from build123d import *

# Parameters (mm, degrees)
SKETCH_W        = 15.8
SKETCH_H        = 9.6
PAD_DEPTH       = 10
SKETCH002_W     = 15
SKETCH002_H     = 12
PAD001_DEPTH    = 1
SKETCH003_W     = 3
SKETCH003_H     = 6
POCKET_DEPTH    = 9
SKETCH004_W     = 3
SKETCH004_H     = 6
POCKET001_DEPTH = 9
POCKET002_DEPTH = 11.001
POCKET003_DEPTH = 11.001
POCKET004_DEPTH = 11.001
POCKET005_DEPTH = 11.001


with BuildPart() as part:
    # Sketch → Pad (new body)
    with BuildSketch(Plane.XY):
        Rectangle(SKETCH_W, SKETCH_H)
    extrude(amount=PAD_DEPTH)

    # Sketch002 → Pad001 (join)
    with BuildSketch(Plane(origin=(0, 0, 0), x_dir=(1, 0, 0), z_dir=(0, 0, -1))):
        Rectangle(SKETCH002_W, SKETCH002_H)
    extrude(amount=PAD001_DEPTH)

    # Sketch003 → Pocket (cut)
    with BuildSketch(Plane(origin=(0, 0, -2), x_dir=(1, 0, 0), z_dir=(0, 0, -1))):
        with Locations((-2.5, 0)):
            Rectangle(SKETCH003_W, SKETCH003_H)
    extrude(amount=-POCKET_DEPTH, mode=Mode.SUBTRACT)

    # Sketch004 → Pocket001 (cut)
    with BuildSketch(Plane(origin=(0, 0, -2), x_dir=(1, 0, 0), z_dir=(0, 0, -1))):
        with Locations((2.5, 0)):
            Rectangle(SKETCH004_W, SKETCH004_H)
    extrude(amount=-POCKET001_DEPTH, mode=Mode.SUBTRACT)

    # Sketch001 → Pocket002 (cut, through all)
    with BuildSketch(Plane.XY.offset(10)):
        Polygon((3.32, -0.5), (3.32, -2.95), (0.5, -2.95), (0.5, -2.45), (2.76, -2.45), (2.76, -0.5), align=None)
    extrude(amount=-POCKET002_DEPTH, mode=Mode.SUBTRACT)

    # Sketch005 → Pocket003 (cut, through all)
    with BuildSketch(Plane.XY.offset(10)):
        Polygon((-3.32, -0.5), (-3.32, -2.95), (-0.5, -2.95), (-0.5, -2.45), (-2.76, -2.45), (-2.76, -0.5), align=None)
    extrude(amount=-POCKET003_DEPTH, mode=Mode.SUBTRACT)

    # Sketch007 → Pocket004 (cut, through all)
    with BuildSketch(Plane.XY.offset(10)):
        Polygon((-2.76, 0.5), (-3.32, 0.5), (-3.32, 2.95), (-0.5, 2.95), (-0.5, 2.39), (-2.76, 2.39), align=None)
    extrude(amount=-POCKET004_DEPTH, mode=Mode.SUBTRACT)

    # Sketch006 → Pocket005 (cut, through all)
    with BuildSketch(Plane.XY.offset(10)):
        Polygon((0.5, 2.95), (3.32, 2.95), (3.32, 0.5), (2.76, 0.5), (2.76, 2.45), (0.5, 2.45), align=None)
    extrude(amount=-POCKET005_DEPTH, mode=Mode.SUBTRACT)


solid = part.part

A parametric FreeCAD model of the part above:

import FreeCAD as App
import Part
import Sketcher

V = App.Vector
Q = App.Units.Quantity

doc = App.newDocument("Part")
params = doc.addObject("Spreadsheet::Sheet", "Params")
for row, (alias, value) in enumerate([
    ("sketch1_width", "15.8 mm"),
    ("sketch1_height", "9.6 mm"),
    ("pad1_length", "10 mm"),
    ("sketch2_width", "15 mm"),
    ("sketch2_height", "12 mm"),
    ("pad2_length", "1 mm"),
    ("sketch3_width", "3 mm"),
    ("sketch3_height", "6 mm"),
    ("pocket1_length", "9 mm"),
    ("sketch4_width", "3 mm"),
    ("sketch4_height", "6 mm"),
    ("pocket2_length", "9 mm"),
    ("sketch5_height", "0.5 mm"),
    ("sketch5_width", "0.56 mm"),
    ("sketch5_width2", "2.26 mm"),
    ("sketch5_height2", "2.45 mm"),
    ("sketch6_height", "0.5 mm"),
    ("sketch6_width", "2.82 mm"),
    ("sketch6_width2", "2.26 mm"),
    ("sketch6_height2", "2.45 mm"),
    ("sketch7_width", "0.56 mm"),
    ("sketch7_width2", "2.26 mm"),
    ("sketch7_height", "1.89 mm"),
    ("sketch8_height", "0.5 mm"),
    ("sketch8_width", "2.82 mm"),
    ("sketch8_width2", "2.26 mm"),
    ("sketch8_height2", "1.95 mm"),
], start=1):
    params.set(f"A{row}", alias)
    params.set(f"B{row}", "=" + value)
    params.setAlias(f"B{row}", alias)

body = doc.addObject("PartDesign::Body", "Body")

# Sketch on XY plane
sketch1 = body.newObject("Sketcher::SketchObject", "Sketch")
sketch1.AttachmentSupport = (doc.getObject("XY_Plane"), [""])
sketch1.MapMode = "FlatFace"
sketch1.addGeometry(Part.LineSegment(V(-8, 5, 0), V(-8, -5, 0)), False)
sketch1.addGeometry(Part.LineSegment(V(-8, -5, 0), V(8, -5, 0)), False)
sketch1.addGeometry(Part.LineSegment(V(8, -5, 0), V(8, 5, 0)), False)
sketch1.addGeometry(Part.LineSegment(V(8, 5, 0), V(-8, 5, 0)), False)
sketch1.addConstraint(Sketcher.Constraint("Coincident", 0, 2, 1, 1))
sketch1.addConstraint(Sketcher.Constraint("Coincident", 1, 2, 2, 1))
sketch1.addConstraint(Sketcher.Constraint("Coincident", 2, 2, 3, 1))
sketch1.addConstraint(Sketcher.Constraint("Coincident", 3, 2, 0, 1))
sketch1.addConstraint(Sketcher.Constraint("Vertical", 0))
sketch1.addConstraint(Sketcher.Constraint("Horizontal", 1))
sketch1.addConstraint(Sketcher.Constraint("Vertical", 2))
sketch1.addConstraint(Sketcher.Constraint("Horizontal", 3))
sketch1.addConstraint(Sketcher.Constraint("Symmetric", 0, 2, 2, 2, -1, 1))
sketch1.addConstraint(Sketcher.Constraint("DistanceX", 1, 1, 1, 2, Q("15.8 mm")))
sketch1.addConstraint(Sketcher.Constraint("DistanceY", 0, 2, 0, 1, Q("9.6 mm")))
sketch1.setExpression("Constraints[9]", "Params.sketch1_width")
sketch1.setExpression("Constraints[10]", "Params.sketch1_height")
pad1 = body.newObject("PartDesign::Pad", "Pad")
pad1.Profile = sketch1
pad1.setExpression("Length", "Params.pad1_length")

# Sketch on XY plane
sketch2 = body.newObject("Sketcher::SketchObject", "Sketch001")
sketch2.AttachmentSupport = (doc.getObject("XY_Plane"), [""])
sketch2.MapMode = "FlatFace"
sketch2.addGeometry(Part.LineSegment(V(-8, -6, 0), V(-8, 6, 0)), False)
sketch2.addGeometry(Part.LineSegment(V(-8, 6, 0), V(8, 6, 0)), False)
sketch2.addGeometry(Part.LineSegment(V(8, 6, 0), V(8, -6, 0)), False)
sketch2.addGeometry(Part.LineSegment(V(8, -6, 0), V(-8, -6, 0)), False)
sketch2.addConstraint(Sketcher.Constraint("Coincident", 0, 2, 1, 1))
sketch2.addConstraint(Sketcher.Constraint("Coincident", 1, 2, 2, 1))
sketch2.addConstraint(Sketcher.Constraint("Coincident", 2, 2, 3, 1))
sketch2.addConstraint(Sketcher.Constraint("Coincident", 3, 2, 0, 1))
sketch2.addConstraint(Sketcher.Constraint("Vertical", 0))
sketch2.addConstraint(Sketcher.Constraint("Horizontal", 1))
sketch2.addConstraint(Sketcher.Constraint("Vertical", 2))
sketch2.addConstraint(Sketcher.Constraint("Horizontal", 3))
sketch2.addConstraint(Sketcher.Constraint("Symmetric", 0, 2, 2, 2, -1, 1))
sketch2.addConstraint(Sketcher.Constraint("DistanceX", 1, 1, 1, 2, Q("15 mm")))
sketch2.addConstraint(Sketcher.Constraint("DistanceY", 0, 1, 0, 2, Q("12 mm")))
sketch2.setExpression("Constraints[9]", "Params.sketch2_width")
sketch2.setExpression("Constraints[10]", "Params.sketch2_height")
pad2 = body.newObject("PartDesign::Pad", "Pad001")
pad2.Profile = sketch2
pad2.setExpression("Length", "Params.pad2_length")
pad2.Reversed = True

# Sketch on XY plane
sketch3 = body.newObject("Sketcher::SketchObject", "Sketch002")
sketch3.AttachmentSupport = (doc.getObject("XY_Plane"), [""])
sketch3.MapMode = "FlatFace"
sketch3.AttachmentOffset = App.Placement(V(0, 0, -2), App.Rotation())
sketch3.addGeometry(Part.LineSegment(V(-4, -3, 0), V(-4, 3, 0)), False)
sketch3.addGeometry(Part.LineSegment(V(-4, 3, 0), V(-1, 3, 0)), False)
sketch3.addGeometry(Part.LineSegment(V(-1, 3, 0), V(-1, -3, 0)), False)
sketch3.addGeometry(Part.LineSegment(V(-1, -3, 0), V(-4, -3, 0)), False)
sketch3.addConstraint(Sketcher.Constraint("Coincident", 0, 2, 1, 1))
sketch3.addConstraint(Sketcher.Constraint("Coincident", 1, 2, 2, 1))
sketch3.addConstraint(Sketcher.Constraint("Coincident", 2, 2, 3, 1))
sketch3.addConstraint(Sketcher.Constraint("Coincident", 3, 2, 0, 1))
sketch3.addConstraint(Sketcher.Constraint("Vertical", 0))
sketch3.addConstraint(Sketcher.Constraint("Horizontal", 1))
sketch3.addConstraint(Sketcher.Constraint("Vertical", 2))
sketch3.addConstraint(Sketcher.Constraint("Horizontal", 3))
sketch3.addConstraint(Sketcher.Constraint("DistanceX", 1, 1, 1, 2, Q("3 mm")))
sketch3.addConstraint(Sketcher.Constraint("DistanceY", 0, 1, 0, 2, Q("6 mm")))
sketch3.addConstraint(Sketcher.Constraint("DistanceX", 0, 2, -1, 1, Q("4 mm")))
sketch3.addConstraint(Sketcher.Constraint("DistanceY", -1, 1, 0, 2, Q("3 mm")))
sketch3.setExpression("Constraints[8]", "Params.sketch3_width")
sketch3.setExpression("Constraints[9]", "Params.sketch3_height")
pocket1 = body.newObject("PartDesign::Pocket", "Pocket")
pocket1.Profile = sketch3
pocket1.setExpression("Length", "Params.pocket1_length")
pocket1.Reversed = True

# Sketch on XY plane
sketch4 = body.newObject("Sketcher::SketchObject", "Sketch003")
sketch4.AttachmentSupport = (doc.getObject("XY_Plane"), [""])
sketch4.MapMode = "FlatFace"
sketch4.AttachmentOffset = App.Placement(V(0, 0, -2), App.Rotation())
sketch4.addGeometry(Part.LineSegment(V(1, -3, 0), V(1, 3, 0)), False)
sketch4.addGeometry(Part.LineSegment(V(1, 3, 0), V(4, 3, 0)), False)
sketch4.addGeometry(Part.LineSegment(V(4, 3, 0), V(4, -3, 0)), False)
sketch4.addGeometry(Part.LineSegment(V(4, -3, 0), V(1, -3, 0)), False)
sketch4.addConstraint(Sketcher.Constraint("Coincident", 0, 2, 1, 1))
sketch4.addConstraint(Sketcher.Constraint("Coincident", 1, 2, 2, 1))
sketch4.addConstraint(Sketcher.Constraint("Coincident", 2, 2, 3, 1))
sketch4.addConstraint(Sketcher.Constraint("Coincident", 3, 2, 0, 1))
sketch4.addConstraint(Sketcher.Constraint("Vertical", 0))
sketch4.addConstraint(Sketcher.Constraint("Horizontal", 1))
sketch4.addConstraint(Sketcher.Constraint("Vertical", 2))
sketch4.addConstraint(Sketcher.Constraint("Horizontal", 3))
sketch4.addConstraint(Sketcher.Constraint("DistanceX", 1, 1, 1, 2, Q("3 mm")))
sketch4.addConstraint(Sketcher.Constraint("DistanceY", 0, 1, 0, 2, Q("6 mm")))
sketch4.addConstraint(Sketcher.Constraint("DistanceX", -1, 1, 0, 2, Q("1 mm")))
sketch4.addConstraint(Sketcher.Constraint("DistanceY", -1, 1, 0, 2, Q("3 mm")))
sketch4.setExpression("Constraints[8]", "Params.sketch4_width")
sketch4.setExpression("Constraints[9]", "Params.sketch4_height")
pocket2 = body.newObject("PartDesign::Pocket", "Pocket001")
pocket2.Profile = sketch4
pocket2.setExpression("Length", "Params.pocket2_length")
pocket2.Reversed = True

# Sketch on XY plane
sketch5 = body.newObject("Sketcher::SketchObject", "Sketch004")
sketch5.AttachmentSupport = (doc.getObject("XY_Plane"), [""])
sketch5.MapMode = "FlatFace"
sketch5.AttachmentOffset = App.Placement(V(0, 0, 10), App.Rotation())
sketch5.addGeometry(Part.LineSegment(V(3.3, -3, 0), V(3.3, -0.5, 0)), False)
sketch5.addGeometry(Part.LineSegment(V(3.3, -0.5, 0), V(2.8, -0.5, 0)), False)
sketch5.addGeometry(Part.LineSegment(V(2.8, -0.5, 0), V(2.8, -2.5, 0)), False)
sketch5.addGeometry(Part.LineSegment(V(2.8, -2.5, 0), V(0.5, -2.5, 0)), False)
sketch5.addGeometry(Part.LineSegment(V(0.5, -2.5, 0), V(0.5, -3, 0)), False)
sketch5.addGeometry(Part.LineSegment(V(0.5, -3, 0), V(3.3, -3, 0)), False)
sketch5.addConstraint(Sketcher.Constraint("Coincident", 0, 2, 1, 1))
sketch5.addConstraint(Sketcher.Constraint("Coincident", 1, 2, 2, 1))
sketch5.addConstraint(Sketcher.Constraint("Coincident", 2, 2, 3, 1))
sketch5.addConstraint(Sketcher.Constraint("Coincident", 3, 2, 4, 1))
sketch5.addConstraint(Sketcher.Constraint("Coincident", 4, 2, 5, 1))
sketch5.addConstraint(Sketcher.Constraint("Coincident", 5, 2, 0, 1))
sketch5.addConstraint(Sketcher.Constraint("Vertical", 0))
sketch5.addConstraint(Sketcher.Constraint("Horizontal", 1))
sketch5.addConstraint(Sketcher.Constraint("Vertical", 2))
sketch5.addConstraint(Sketcher.Constraint("Horizontal", 3))
sketch5.addConstraint(Sketcher.Constraint("Vertical", 4))
sketch5.addConstraint(Sketcher.Constraint("Horizontal", 5))
sketch5.addConstraint(Sketcher.Constraint("DistanceY", 4, 2, 4, 1, Q("0.5 mm")))
sketch5.addConstraint(Sketcher.Constraint("DistanceX", 1, 2, 1, 1, Q("0.56 mm")))
sketch5.addConstraint(Sketcher.Constraint("DistanceX", 3, 2, 3, 1, Q("2.26 mm")))
sketch5.addConstraint(Sketcher.Constraint("DistanceY", 0, 1, 0, 2, Q("2.45 mm")))
sketch5.addConstraint(Sketcher.Constraint("DistanceY", 0, 2, -1, 1, Q("0.5 mm")))
sketch5.addConstraint(Sketcher.Constraint("DistanceX", -1, 1, 3, 2, Q("0.5 mm")))
sketch5.setExpression("Constraints[12]", "Params.sketch5_height")
sketch5.setExpression("Constraints[13]", "Params.sketch5_width")
sketch5.setExpression("Constraints[14]", "Params.sketch5_width2")
sketch5.setExpression("Constraints[15]", "Params.sketch5_height2")
pocket3 = body.newObject("PartDesign::Pocket", "Pocket002")
pocket3.Profile = sketch5
pocket3.Type = "ThroughAll"

# Sketch on XY plane
sketch6 = body.newObject("Sketcher::SketchObject", "Sketch005")
sketch6.AttachmentSupport = (doc.getObject("XY_Plane"), [""])
sketch6.MapMode = "FlatFace"
sketch6.AttachmentOffset = App.Placement(V(0, 0, 10), App.Rotation())
sketch6.addGeometry(Part.LineSegment(V(-3.3, -0.5, 0), V(-3.3, -3, 0)), False)
sketch6.addGeometry(Part.LineSegment(V(-3.3, -3, 0), V(-0.5, -3, 0)), False)
sketch6.addGeometry(Part.LineSegment(V(-0.5, -3, 0), V(-0.5, -2.5, 0)), False)
sketch6.addGeometry(Part.LineSegment(V(-0.5, -2.5, 0), V(-2.8, -2.5, 0)), False)
sketch6.addGeometry(Part.LineSegment(V(-2.8, -2.5, 0), V(-2.8, -0.5, 0)), False)
sketch6.addGeometry(Part.LineSegment(V(-2.8, -0.5, 0), V(-3.3, -0.5, 0)), False)
sketch6.addConstraint(Sketcher.Constraint("Coincident", 0, 2, 1, 1))
sketch6.addConstraint(Sketcher.Constraint("Coincident", 1, 2, 2, 1))
sketch6.addConstraint(Sketcher.Constraint("Coincident", 2, 2, 3, 1))
sketch6.addConstraint(Sketcher.Constraint("Coincident", 3, 2, 4, 1))
sketch6.addConstraint(Sketcher.Constraint("Coincident", 4, 2, 5, 1))
sketch6.addConstraint(Sketcher.Constraint("Coincident", 5, 2, 0, 1))
sketch6.addConstraint(Sketcher.Constraint("Vertical", 0))
sketch6.addConstraint(Sketcher.Constraint("Horizontal", 1))
sketch6.addConstraint(Sketcher.Constraint("Vertical", 2))
sketch6.addConstraint(Sketcher.Constraint("Horizontal", 3))
sketch6.addConstraint(Sketcher.Constraint("Vertical", 4))
sketch6.addConstraint(Sketcher.Constraint("Horizontal", 5))
sketch6.addConstraint(Sketcher.Constraint("DistanceY", 2, 1, 2, 2, Q("0.5 mm")))
sketch6.addConstraint(Sketcher.Constraint("DistanceX", 1, 1, 1, 2, Q("2.82 mm")))
sketch6.addConstraint(Sketcher.Constraint("DistanceX", 3, 2, 3, 1, Q("2.26 mm")))
sketch6.addConstraint(Sketcher.Constraint("DistanceY", 0, 2, 0, 1, Q("2.45 mm")))
sketch6.addConstraint(Sketcher.Constraint("DistanceX", 1, 2, -1, 1, Q("0.5 mm")))
sketch6.addConstraint(Sketcher.Constraint("DistanceY", 4, 2, -1, 1, Q("0.5 mm")))
sketch6.setExpression("Constraints[12]", "Params.sketch6_height")
sketch6.setExpression("Constraints[13]", "Params.sketch6_width")
sketch6.setExpression("Constraints[14]", "Params.sketch6_width2")
sketch6.setExpression("Constraints[15]", "Params.sketch6_height2")
pocket4 = body.newObject("PartDesign::Pocket", "Pocket003")
pocket4.Profile = sketch6
pocket4.Type = "ThroughAll"

# Sketch on XY plane
sketch7 = body.newObject("Sketcher::SketchObject", "Sketch006")
sketch7.AttachmentSupport = (doc.getObject("XY_Plane"), [""])
sketch7.MapMode = "FlatFace"
sketch7.AttachmentOffset = App.Placement(V(0, 0, 10), App.Rotation())
sketch7.addGeometry(Part.LineSegment(V(-3.3, 0.5, 0), V(-2.8, 0.5, 0)), False)
sketch7.addGeometry(Part.LineSegment(V(-2.8, 0.5, 0), V(-2.8, 2.4, 0)), False)
sketch7.addGeometry(Part.LineSegment(V(-2.8, 2.4, 0), V(-0.5, 2.4, 0)), False)
sketch7.addGeometry(Part.LineSegment(V(-0.5, 2.4, 0), V(-0.5, 3, 0)), False)
sketch7.addGeometry(Part.LineSegment(V(-0.5, 3, 0), V(-3.3, 3, 0)), False)
sketch7.addGeometry(Part.LineSegment(V(-3.3, 3, 0), V(-3.3, 0.5, 0)), False)
sketch7.addConstraint(Sketcher.Constraint("Coincident", 0, 2, 1, 1))
sketch7.addConstraint(Sketcher.Constraint("Coincident", 1, 2, 2, 1))
sketch7.addConstraint(Sketcher.Constraint("Coincident", 2, 2, 3, 1))
sketch7.addConstraint(Sketcher.Constraint("Coincident", 3, 2, 4, 1))
sketch7.addConstraint(Sketcher.Constraint("Coincident", 4, 2, 5, 1))
sketch7.addConstraint(Sketcher.Constraint("Coincident", 5, 2, 0, 1))
sketch7.addConstraint(Sketcher.Constraint("Horizontal", 0))
sketch7.addConstraint(Sketcher.Constraint("Vertical", 1))
sketch7.addConstraint(Sketcher.Constraint("Horizontal", 2))
sketch7.addConstraint(Sketcher.Constraint("Vertical", 3))
sketch7.addConstraint(Sketcher.Constraint("Horizontal", 4))
sketch7.addConstraint(Sketcher.Constraint("Vertical", 5))
sketch7.addConstraint(Sketcher.Constraint("Equal", 0, 3))
sketch7.addConstraint(Sketcher.Constraint("DistanceX", 0, 1, 0, 2, Q("0.56 mm")))
sketch7.addConstraint(Sketcher.Constraint("DistanceX", 2, 1, 2, 2, Q("2.26 mm")))
sketch7.addConstraint(Sketcher.Constraint("DistanceY", 1, 1, 1, 2, Q("1.89 mm")))
sketch7.addConstraint(Sketcher.Constraint("DistanceY", -1, 1, 0, 2, Q("0.5 mm")))
sketch7.addConstraint(Sketcher.Constraint("DistanceX", 2, 2, -1, 1, Q("0.5 mm")))
sketch7.setExpression("Constraints[13]", "Params.sketch7_width")
sketch7.setExpression("Constraints[14]", "Params.sketch7_width2")
sketch7.setExpression("Constraints[15]", "Params.sketch7_height")
pocket5 = body.newObject("PartDesign::Pocket", "Pocket004")
pocket5.Profile = sketch7
pocket5.Type = "ThroughAll"

# Sketch on XY plane
sketch8 = body.newObject("Sketcher::SketchObject", "Sketch007")
sketch8.AttachmentSupport = (doc.getObject("XY_Plane"), [""])
sketch8.MapMode = "FlatFace"
sketch8.AttachmentOffset = App.Placement(V(0, 0, 10), App.Rotation())
sketch8.addGeometry(Part.LineSegment(V(3.3, 3, 0), V(0.5, 3, 0)), False)
sketch8.addGeometry(Part.LineSegment(V(0.5, 3, 0), V(0.5, 2.5, 0)), False)
sketch8.addGeometry(Part.LineSegment(V(0.5, 2.5, 0), V(2.8, 2.5, 0)), False)
sketch8.addGeometry(Part.LineSegment(V(2.8, 2.5, 0), V(2.8, 0.5, 0)), False)
sketch8.addGeometry(Part.LineSegment(V(2.8, 0.5, 0), V(3.3, 0.5, 0)), False)
sketch8.addGeometry(Part.LineSegment(V(3.3, 0.5, 0), V(3.3, 3, 0)), False)
sketch8.addConstraint(Sketcher.Constraint("Coincident", 0, 2, 1, 1))
sketch8.addConstraint(Sketcher.Constraint("Coincident", 1, 2, 2, 1))
sketch8.addConstraint(Sketcher.Constraint("Coincident", 2, 2, 3, 1))
sketch8.addConstraint(Sketcher.Constraint("Coincident", 3, 2, 4, 1))
sketch8.addConstraint(Sketcher.Constraint("Coincident", 4, 2, 5, 1))
sketch8.addConstraint(Sketcher.Constraint("Coincident", 5, 2, 0, 1))
sketch8.addConstraint(Sketcher.Constraint("Horizontal", 0))
sketch8.addConstraint(Sketcher.Constraint("Vertical", 1))
sketch8.addConstraint(Sketcher.Constraint("Horizontal", 2))
sketch8.addConstraint(Sketcher.Constraint("Vertical", 3))
sketch8.addConstraint(Sketcher.Constraint("Horizontal", 4))
sketch8.addConstraint(Sketcher.Constraint("Vertical", 5))
sketch8.addConstraint(Sketcher.Constraint("DistanceY", 1, 2, 1, 1, Q("0.5 mm")))
sketch8.addConstraint(Sketcher.Constraint("DistanceX", 0, 2, 0, 1, Q("2.82 mm")))
sketch8.addConstraint(Sketcher.Constraint("DistanceX", 2, 1, 2, 2, Q("2.26 mm")))
sketch8.addConstraint(Sketcher.Constraint("DistanceY", 3, 2, 3, 1, Q("1.95 mm")))
sketch8.addConstraint(Sketcher.Constraint("DistanceX", -1, 1, 0, 2, Q("0.5 mm")))
sketch8.addConstraint(Sketcher.Constraint("DistanceY", -1, 1, 3, 2, Q("0.5 mm")))
sketch8.setExpression("Constraints[12]", "Params.sketch8_height")
sketch8.setExpression("Constraints[13]", "Params.sketch8_width")
sketch8.setExpression("Constraints[14]", "Params.sketch8_width2")
sketch8.setExpression("Constraints[15]", "Params.sketch8_height2")
pocket6 = body.newObject("PartDesign::Pocket", "Pocket005")
pocket6.Profile = sketch8
pocket6.Type = "ThroughAll"

doc.recompute()
